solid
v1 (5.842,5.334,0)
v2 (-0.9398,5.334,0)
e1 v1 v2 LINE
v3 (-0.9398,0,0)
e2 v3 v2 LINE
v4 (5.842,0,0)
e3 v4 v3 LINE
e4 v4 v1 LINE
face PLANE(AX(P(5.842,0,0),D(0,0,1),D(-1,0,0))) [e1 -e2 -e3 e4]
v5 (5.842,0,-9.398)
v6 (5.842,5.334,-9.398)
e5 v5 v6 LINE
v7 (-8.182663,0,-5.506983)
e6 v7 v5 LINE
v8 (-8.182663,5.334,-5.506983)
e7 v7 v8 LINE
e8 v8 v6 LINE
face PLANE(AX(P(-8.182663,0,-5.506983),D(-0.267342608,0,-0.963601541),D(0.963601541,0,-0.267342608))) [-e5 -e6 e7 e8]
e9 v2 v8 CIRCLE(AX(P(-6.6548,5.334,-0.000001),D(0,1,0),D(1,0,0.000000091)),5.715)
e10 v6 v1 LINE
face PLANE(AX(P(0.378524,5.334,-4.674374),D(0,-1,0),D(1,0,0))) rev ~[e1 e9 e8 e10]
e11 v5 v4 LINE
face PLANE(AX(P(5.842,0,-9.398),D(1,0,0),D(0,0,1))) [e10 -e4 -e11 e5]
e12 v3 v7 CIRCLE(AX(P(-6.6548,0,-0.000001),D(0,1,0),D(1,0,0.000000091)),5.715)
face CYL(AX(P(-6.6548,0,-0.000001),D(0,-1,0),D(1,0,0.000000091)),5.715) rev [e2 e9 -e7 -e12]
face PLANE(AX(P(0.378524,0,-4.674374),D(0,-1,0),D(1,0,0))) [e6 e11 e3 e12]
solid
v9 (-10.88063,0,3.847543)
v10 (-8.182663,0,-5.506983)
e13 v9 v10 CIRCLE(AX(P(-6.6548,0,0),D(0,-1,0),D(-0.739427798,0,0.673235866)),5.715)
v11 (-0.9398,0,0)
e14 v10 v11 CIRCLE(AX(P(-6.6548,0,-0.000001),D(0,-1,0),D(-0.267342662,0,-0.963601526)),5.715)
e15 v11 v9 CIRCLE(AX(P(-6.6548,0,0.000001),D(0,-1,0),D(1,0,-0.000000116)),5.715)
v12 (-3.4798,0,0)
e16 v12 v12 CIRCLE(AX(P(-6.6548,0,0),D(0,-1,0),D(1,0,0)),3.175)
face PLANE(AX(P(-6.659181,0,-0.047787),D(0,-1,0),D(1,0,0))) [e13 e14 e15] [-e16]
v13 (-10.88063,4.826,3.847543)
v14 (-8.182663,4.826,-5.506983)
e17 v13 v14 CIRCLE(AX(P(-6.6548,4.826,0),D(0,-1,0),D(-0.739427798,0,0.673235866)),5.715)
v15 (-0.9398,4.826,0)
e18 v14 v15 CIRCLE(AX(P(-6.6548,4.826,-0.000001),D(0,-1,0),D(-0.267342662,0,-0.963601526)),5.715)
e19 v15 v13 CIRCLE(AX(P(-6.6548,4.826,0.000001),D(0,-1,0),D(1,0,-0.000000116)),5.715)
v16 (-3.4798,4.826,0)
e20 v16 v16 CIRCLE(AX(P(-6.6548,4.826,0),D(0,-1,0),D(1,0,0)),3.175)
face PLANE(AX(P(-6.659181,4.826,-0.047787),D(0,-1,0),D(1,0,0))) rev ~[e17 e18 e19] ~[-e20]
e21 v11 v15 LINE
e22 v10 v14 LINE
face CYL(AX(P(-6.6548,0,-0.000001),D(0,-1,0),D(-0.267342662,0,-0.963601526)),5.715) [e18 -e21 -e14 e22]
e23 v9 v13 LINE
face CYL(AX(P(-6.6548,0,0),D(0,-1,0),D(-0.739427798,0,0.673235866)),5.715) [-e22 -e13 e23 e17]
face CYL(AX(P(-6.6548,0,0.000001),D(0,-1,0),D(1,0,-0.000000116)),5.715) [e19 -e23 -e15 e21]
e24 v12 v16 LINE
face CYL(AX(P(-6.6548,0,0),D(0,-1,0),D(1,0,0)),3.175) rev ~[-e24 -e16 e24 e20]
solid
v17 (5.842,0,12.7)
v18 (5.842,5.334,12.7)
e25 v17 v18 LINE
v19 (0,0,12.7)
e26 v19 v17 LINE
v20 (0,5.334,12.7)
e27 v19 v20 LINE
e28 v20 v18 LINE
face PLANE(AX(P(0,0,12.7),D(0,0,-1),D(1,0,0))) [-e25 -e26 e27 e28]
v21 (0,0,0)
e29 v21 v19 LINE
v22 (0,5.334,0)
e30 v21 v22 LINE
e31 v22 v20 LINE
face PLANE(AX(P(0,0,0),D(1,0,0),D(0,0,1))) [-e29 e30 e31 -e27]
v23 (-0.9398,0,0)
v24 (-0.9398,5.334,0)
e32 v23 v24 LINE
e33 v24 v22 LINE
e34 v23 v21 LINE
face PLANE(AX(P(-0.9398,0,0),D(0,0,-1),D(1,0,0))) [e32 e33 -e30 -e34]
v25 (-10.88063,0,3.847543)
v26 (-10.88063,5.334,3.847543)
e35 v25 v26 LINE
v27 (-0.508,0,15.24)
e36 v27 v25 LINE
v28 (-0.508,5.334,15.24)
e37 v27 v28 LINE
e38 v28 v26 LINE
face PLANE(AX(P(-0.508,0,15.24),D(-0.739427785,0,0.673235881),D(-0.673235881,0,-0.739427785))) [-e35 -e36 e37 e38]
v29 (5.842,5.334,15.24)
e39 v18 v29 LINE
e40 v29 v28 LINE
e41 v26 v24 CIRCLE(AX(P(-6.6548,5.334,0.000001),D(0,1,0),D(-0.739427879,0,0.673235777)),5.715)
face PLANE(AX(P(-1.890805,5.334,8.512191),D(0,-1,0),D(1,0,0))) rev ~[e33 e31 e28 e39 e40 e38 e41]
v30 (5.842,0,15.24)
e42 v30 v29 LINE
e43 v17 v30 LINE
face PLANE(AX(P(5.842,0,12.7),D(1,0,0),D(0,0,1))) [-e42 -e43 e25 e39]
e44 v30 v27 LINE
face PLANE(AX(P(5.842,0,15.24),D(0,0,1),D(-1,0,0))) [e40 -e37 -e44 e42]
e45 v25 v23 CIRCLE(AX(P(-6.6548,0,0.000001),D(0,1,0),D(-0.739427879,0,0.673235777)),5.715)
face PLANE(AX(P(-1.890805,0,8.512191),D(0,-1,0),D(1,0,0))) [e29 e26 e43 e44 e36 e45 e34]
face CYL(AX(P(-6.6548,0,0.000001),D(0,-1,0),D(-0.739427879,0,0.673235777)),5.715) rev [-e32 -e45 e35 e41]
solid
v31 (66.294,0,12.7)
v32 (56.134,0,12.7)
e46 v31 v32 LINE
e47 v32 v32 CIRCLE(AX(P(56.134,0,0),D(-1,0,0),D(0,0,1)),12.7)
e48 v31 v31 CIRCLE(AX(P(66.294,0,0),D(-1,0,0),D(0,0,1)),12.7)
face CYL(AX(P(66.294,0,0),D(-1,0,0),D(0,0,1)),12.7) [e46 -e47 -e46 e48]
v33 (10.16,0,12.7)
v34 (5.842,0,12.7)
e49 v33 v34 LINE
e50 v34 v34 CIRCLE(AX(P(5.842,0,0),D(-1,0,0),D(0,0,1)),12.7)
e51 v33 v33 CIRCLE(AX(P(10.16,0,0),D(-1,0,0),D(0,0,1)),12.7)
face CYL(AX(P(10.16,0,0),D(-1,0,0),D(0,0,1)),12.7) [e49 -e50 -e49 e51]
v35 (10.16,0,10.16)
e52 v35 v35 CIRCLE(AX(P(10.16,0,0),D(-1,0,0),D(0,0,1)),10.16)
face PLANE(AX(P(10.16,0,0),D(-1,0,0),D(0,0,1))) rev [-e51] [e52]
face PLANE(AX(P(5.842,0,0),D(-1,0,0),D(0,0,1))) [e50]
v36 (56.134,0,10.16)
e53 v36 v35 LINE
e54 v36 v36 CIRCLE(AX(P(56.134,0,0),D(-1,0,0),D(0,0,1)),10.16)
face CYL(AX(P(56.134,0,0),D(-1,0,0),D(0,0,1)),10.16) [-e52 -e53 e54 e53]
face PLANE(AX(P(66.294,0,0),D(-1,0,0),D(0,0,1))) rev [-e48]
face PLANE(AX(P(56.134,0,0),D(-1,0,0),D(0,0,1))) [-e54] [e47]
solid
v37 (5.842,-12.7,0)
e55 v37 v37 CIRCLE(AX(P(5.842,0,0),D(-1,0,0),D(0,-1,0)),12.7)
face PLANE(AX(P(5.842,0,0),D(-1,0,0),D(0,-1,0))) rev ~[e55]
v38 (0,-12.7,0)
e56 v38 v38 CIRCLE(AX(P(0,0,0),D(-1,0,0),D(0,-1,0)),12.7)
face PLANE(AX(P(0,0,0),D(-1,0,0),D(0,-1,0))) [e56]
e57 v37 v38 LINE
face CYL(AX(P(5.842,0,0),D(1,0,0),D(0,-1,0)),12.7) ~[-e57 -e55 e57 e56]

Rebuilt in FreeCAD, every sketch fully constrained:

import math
import FreeCAD as App
import Part
import Sketcher
from FreeCAD import Vector
Q = App.Units.Quantity

doc = App.newDocument("Part")
body = doc.addObject("PartDesign::Body", "Body")

sketch1 = doc.addObject("Sketcher::SketchObject", "Sketch")
body.addObject(sketch1)
sketch1.AttachmentSupport = (doc.XZ_Plane, [""])
sketch1.MapMode = "FlatFace"
sketch1.addGeometry([
    Part.LineSegment(Vector(5.8, 12.7, 0), Vector(5.8, 0, 0)),
    Part.LineSegment(Vector(5.8, 0, 0), Vector(66.3, 0, 0)),
    Part.LineSegment(Vector(66.3, 0, 0), Vector(66.3, 12.7, 0)),
    Part.LineSegment(Vector(66.3, 12.7, 0), Vector(56.1, 12.7, 0)),
    Part.LineSegment(Vector(56.1, 12.7, 0), Vector(56.1, 10.2, 0)),
    Part.LineSegment(Vector(56.1, 10.2, 0), Vector(10.2, 10.2, 0)),
    Part.LineSegment(Vector(10.2, 10.2, 0), Vector(10.2, 12.7, 0)),
    Part.LineSegment(Vector(10.2, 12.7, 0), Vector(5.8, 12.7, 0)),
], False)
sketch1.addConstraint([
    Sketcher.Constraint("Coincident", 0, 2, 1, 1),
    Sketcher.Constraint("Coincident", 1, 2, 2, 1),
    Sketcher.Constraint("Coincident", 2, 2, 3, 1),
    Sketcher.Constraint("Coincident", 3, 2, 4, 1),
    Sketcher.Constraint("Coincident", 4, 2, 5, 1),
    Sketcher.Constraint("Coincident", 5, 2, 6, 1),
    Sketcher.Constraint("Coincident", 6, 2, 7, 1),
    Sketcher.Constraint("Coincident", 7, 2, 0, 1),
    Sketcher.Constraint("Vertical", 0),
    Sketcher.Constraint("Horizontal", 1),
    Sketcher.Constraint("Vertical", 2),
    Sketcher.Constraint("Horizontal", 3),
    Sketcher.Constraint("Vertical", 4),
    Sketcher.Constraint("Horizontal", 5),
    Sketcher.Constraint("Vertical", 6),
    Sketcher.Constraint("Horizontal", 7),
    Sketcher.Constraint("PointOnObject", 0, 2, -1),
    Sketcher.Constraint("Horizontal", 3, 2, 6, 2),
    Sketcher.Constraint("DistanceX", 3, 2, 3, 1, Q("0.4 in")),
    Sketcher.Constraint("DistanceY", 0, 2, 0, 1, Q("0.5 in")),
    Sketcher.Constraint("DistanceY", 4, 2, 4, 1, Q("0.1 in")),
    Sketcher.Constraint("DistanceX", 1, 1, 1, 2, Q("2.38 in")),
    Sketcher.Constraint("DistanceX", 5, 2, 5, 1, Q("1.81 in")),
    Sketcher.Constraint("DistanceX", -1, 1, 5, 2, Q("0.4 in")),
])
revolution = doc.addObject("PartDesign::Revolution", "Revolution")
body.addObject(revolution)
revolution.Profile = sketch1
revolution.ReferenceAxis = (sketch1, ["H_Axis"])
revolution.Angle = 360
body2 = doc.addObject("PartDesign::Body", "Body001")

sketch2 = doc.addObject("Sketcher::SketchObject", "Sketch001")
body2.addObject(sketch2)
sketch2.AttachmentSupport = (doc.getObject("XZ_Plane001"), [""])
sketch2.MapMode = "FlatFace"
sketch2.addGeometry([
    Part.LineSegment(Vector(-0.9, 0, 0), Vector(0, 0, 0)),
    Part.LineSegment(Vector(0, 0, 0), Vector(0, 12.7, 0)),
    Part.LineSegment(Vector(0, 12.7, 0), Vector(5.8, 12.7, 0)),
    Part.LineSegment(Vector(5.8, 12.7, 0), Vector(5.8, 15.2, 0)),
    Part.LineSegment(Vector(5.8, 15.2, 0), Vector(-0.5, 15.2, 0)),
    Part.LineSegment(Vector(-0.5, 15.2, 0), Vector(-10.9, 3.8, 0)),
    Part.ArcOfCircle(Part.Circle(Vector(-6.7, 0, 0), Vector(0, 0, 1), 5.7), math.radians(0), math.radians(138)),
], False)
sketch2.addConstraint([
    Sketcher.Constraint("Coincident", 0, 2, 1, 1),
    Sketcher.Constraint("Coincident", 1, 2, 2, 1),
    Sketcher.Constraint("Coincident", 2, 2, 3, 1),
    Sketcher.Constraint("Coincident", 3, 2, 4, 1),
    Sketcher.Constraint("Coincident", 4, 2, 5, 1),
    Sketcher.Constraint("Tangent", 5, 2, 6, 2),
    Sketcher.Constraint("Coincident", 6, 1, 0, 1),
    Sketcher.Constraint("Horizontal", 0),
    Sketcher.Constraint("Vertical", 1),
    Sketcher.Constraint("Horizontal", 2),
    Sketcher.Constraint("Vertical", 3),
    Sketcher.Constraint("Horizontal", 4),
    Sketcher.Constraint("Coincident", 0, 2, -1, 1),
    Sketcher.Constraint("PointOnObject", 6, 3, -1),
    Sketcher.Constraint("DistanceY", 1, 1, 1, 2, Q("0.5 in")),
    Sketcher.Constraint("DistanceY", 3, 1, 3, 2, Q("0.1 in")),
    Sketcher.Constraint("Radius", 6, Q("0.225 in")),
    Sketcher.Constraint("DistanceX", 2, 1, 2, 2, Q("0.23 in")),
    Sketcher.Constraint("DistanceX", 4, 2, 4, 1, Q("0.25 in")),
    Sketcher.Constraint("DistanceX", 0, 1, 0, 2, Q("0.037 in")),
])
pad1 = doc.addObject("PartDesign::Pad", "Pad")
body2.addObject(pad1)
pad1.Profile = sketch2
pad1.Length = Q("0.21 in")
pad1.Reversed = True
body3 = doc.addObject("PartDesign::Body", "Body002")

sketch3 = doc.addObject("Sketcher::SketchObject", "Sketch002")
body3.addObject(sketch3)
sketch3.AttachmentSupport = (doc.getObject("YZ_Plane002"), [""])
sketch3.MapMode = "FlatFace"
sketch3.AttachmentOffset = App.Placement(Vector(0, 0, 0.23 * 25.4), App.Rotation())
sketch3.addGeometry(Part.Circle(Vector(0, 0, 0), Vector(0, 0, 1), 13), False)
sketch3.addConstraint([
    Sketcher.Constraint("Coincident", 0, 3, -1, 1),
    Sketcher.Constraint("Diameter", 0, Q("1 in")),
])
pad2 = doc.addObject("PartDesign::Pad", "Pad001")
body3.addObject(pad2)
pad2.Profile = sketch3
pad2.Length = Q("0.23 in")
pad2.Reversed = True
body4 = doc.addObject("PartDesign::Body", "Body003")

sketch4 = doc.addObject("Sketcher::SketchObject", "Sketch003")
body4.addObject(sketch4)
sketch4.AttachmentSupport = (doc.getObject("XZ_Plane003"), [""])
sketch4.MapMode = "FlatFace"
sketch4.addGeometry([
    Part.LineSegment(Vector(6, 0, 0), Vector(-1, 0, 0)),
    Part.ArcOfCircle(Part.Circle(Vector(-7, 0, 0), Vector(0, 0, 1), 6), math.radians(-106), math.radians(0)),
    Part.LineSegment(Vector(-8, -6, 0), Vector(6, -9, 0)),
    Part.LineSegment(Vector(6, -9, 0), Vector(6, 0, 0)),
], False)
sketch4.addConstraint([
    Sketcher.Constraint("Coincident", 0, 2, 1, 2),
    Sketcher.Constraint("Tangent", 1, 1, 2, 1),
    Sketcher.Constraint("Coincident", 2, 2, 3, 1),
    Sketcher.Constraint("Coincident", 3, 2, 0, 1),
    Sketcher.Constraint("Horizontal", 0),
    Sketcher.Constraint("Vertical", 3),
    Sketcher.Constraint("PointOnObject", 1, 3, -1),
    Sketcher.Constraint("PointOnObject", 0, 2, -1),
    Sketcher.Constraint("Radius", 1, Q("0.225 in")),
    Sketcher.Constraint("DistanceY", 3, 1, 3, 2, Q("0.37 in")),
    Sketcher.Constraint("DistanceX", 0, 2, 0, 1, Q("0.267 in")),
    Sketcher.Constraint("DistanceX", -1, 1, 2, 2, Q("0.23 in")),
])
pad3 = doc.addObject("PartDesign::Pad", "Pad002")
body4.addObject(pad3)
pad3.Profile = sketch4
pad3.Length = Q("0.21 in")
pad3.Reversed = True
body5 = doc.addObject("PartDesign::Body", "Body004")

sketch5 = doc.addObject("Sketcher::SketchObject", "Sketch004")
body5.addObject(sketch5)
sketch5.AttachmentSupport = (doc.getObject("XZ_Plane004"), [""])
sketch5.MapMode = "FlatFace"
sketch5.addGeometry([
    Part.ArcOfCircle(Part.Circle(Vector(-6.7, 0, 0), Vector(0, 0, 1), 5.7), math.radians(-106), math.radians(0)),
    Part.ArcOfCircle(Part.Circle(Vector(-6.7, 0, 0), Vector(0, 0, 1), 5.7), math.radians(0), math.radians(138)),
    Part.ArcOfCircle(Part.Circle(Vector(-6.7, 0, 0), Vector(0, 0, 1), 5.7), math.radians(138), math.radians(254)),
    Part.Circle(Vector(-6.7, 0, 0), Vector(0, 0, 1), 3.2),
], False)
sketch5.addConstraint([
    Sketcher.Constraint("Tangent", 0, 2, 1, 1),
    Sketcher.Constraint("Tangent", 1, 2, 2, 1),
    Sketcher.Constraint("Tangent", 2, 2, 0, 1),
    Sketcher.Constraint("Coincident", 3, 3, 0, 3),
    Sketcher.Constraint("PointOnObject", 0, 3, -1),
    Sketcher.Constraint("PointOnObject", 0, 2, -1),
    Sketcher.Constraint("Diameter", 3, Q("0.25 in")),
    Sketcher.Constraint("Radius", 0, Q("0.225 in")),
    Sketcher.Constraint("DistanceX", 0, 3, -1, 1, Q("0.262 in")),
    Sketcher.Constraint("DistanceX", 1, 2, -1, 1, 10.88063),
    Sketcher.Constraint("DistanceX", 2, 2, -1, 1, 8.182663),
])
pad4 = doc.addObject("PartDesign::Pad", "Pad003")
body5.addObject(pad4)
pad4.Profile = sketch5
pad4.Length = Q("0.19 in")
pad4.Reversed = True

doc.recompute()
